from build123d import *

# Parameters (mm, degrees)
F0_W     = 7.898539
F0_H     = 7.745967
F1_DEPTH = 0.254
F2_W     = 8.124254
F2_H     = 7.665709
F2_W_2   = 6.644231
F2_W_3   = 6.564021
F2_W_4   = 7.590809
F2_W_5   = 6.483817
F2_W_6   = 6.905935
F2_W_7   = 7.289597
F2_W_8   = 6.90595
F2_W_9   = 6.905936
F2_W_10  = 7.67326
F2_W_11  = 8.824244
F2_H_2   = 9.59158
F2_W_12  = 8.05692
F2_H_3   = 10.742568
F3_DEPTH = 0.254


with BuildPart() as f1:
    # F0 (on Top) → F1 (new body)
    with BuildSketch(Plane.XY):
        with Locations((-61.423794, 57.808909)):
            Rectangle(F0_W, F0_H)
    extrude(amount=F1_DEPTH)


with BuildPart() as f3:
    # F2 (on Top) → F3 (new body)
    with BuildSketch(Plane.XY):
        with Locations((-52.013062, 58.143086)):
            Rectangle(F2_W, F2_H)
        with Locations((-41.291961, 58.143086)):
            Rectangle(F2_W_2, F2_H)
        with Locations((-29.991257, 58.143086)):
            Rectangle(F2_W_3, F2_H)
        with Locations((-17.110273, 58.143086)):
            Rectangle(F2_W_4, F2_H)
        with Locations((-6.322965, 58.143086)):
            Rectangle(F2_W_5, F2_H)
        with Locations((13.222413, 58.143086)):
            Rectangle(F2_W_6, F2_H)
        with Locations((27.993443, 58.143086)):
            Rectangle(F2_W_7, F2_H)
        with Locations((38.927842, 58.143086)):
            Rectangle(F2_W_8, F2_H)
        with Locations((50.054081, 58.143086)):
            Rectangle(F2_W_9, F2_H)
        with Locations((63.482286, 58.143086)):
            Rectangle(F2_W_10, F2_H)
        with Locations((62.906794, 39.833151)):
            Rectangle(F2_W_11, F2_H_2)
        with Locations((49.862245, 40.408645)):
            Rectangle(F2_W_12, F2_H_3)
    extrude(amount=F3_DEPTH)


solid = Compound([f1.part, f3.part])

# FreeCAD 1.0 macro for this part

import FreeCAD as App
import Part
import Sketcher
from FreeCAD import Vector
Q = App.Units.Quantity

doc = App.newDocument("Part")
body = doc.addObject("PartDesign::Body", "Body")

sketch1 = body.newObject("Sketcher::SketchObject", "Sketch")
sketch1.AttachmentSupport = (doc.getObject("XY_Plane"), [""])
sketch1.MapMode = "FlatFace"
sketch1.addGeometry([
    Part.LineSegment(Vector(-65, 62, 0), Vector(-65, 54, 0)),
    Part.LineSegment(Vector(-65, 54, 0), Vector(-57, 54, 0)),
    Part.LineSegment(Vector(-57, 54, 0), Vector(-57, 62, 0)),
    Part.LineSegment(Vector(-57, 62, 0), Vector(-65, 62, 0)),
], False)
sketch1.addConstraint([
    Sketcher.Constraint("Coincident", 0, 2, 1, 1),
    Sketcher.Constraint("Coincident", 1, 2, 2, 1),
    Sketcher.Constraint("Coincident", 2, 2, 3, 1),
    Sketcher.Constraint("Coincident", 3, 2, 0, 1),
    Sketcher.Constraint("Vertical", 0),
    Sketcher.Constraint("Horizontal", 1),
    Sketcher.Constraint("Vertical", 2),
    Sketcher.Constraint("Horizontal", 3),
    Sketcher.Constraint("DistanceX", 1, 1, 1, 2, 7.898539),
    Sketcher.Constraint("DistanceY", 0, 2, 0, 1, 7.745967),
    Sketcher.Constraint("DistanceX", 0, 2, -1, 1, 65.373064),
    Sketcher.Constraint("DistanceY", -1, 1, 0, 2, 53.935926),
])
pad1 = body.newObject("PartDesign::Pad", "Pad")
pad1.Profile = sketch1
pad1.Length = Q("0.01 in")
body2 = doc.addObject("PartDesign::Body", "Body001")
body2.AllowCompound = True

sketch2 = body2.newObject("Sketcher::SketchObject", "Sketch001")
sketch2.AttachmentSupport = (doc.getObject("XY_Plane001"), [""])
sketch2.MapMode = "FlatFace"
sketch2.addGeometry([
    Part.LineSegment(Vector(-56, 62, 0), Vector(-56, 54, 0)),
    Part.LineSegment(Vector(-56, 54, 0), Vector(-48, 54, 0)),
    Part.LineSegment(Vector(-48, 54, 0), Vector(-48, 62, 0)),
    Part.LineSegment(Vector(-48, 62, 0), Vector(-56, 62, 0)),
    Part.LineSegment(Vector(-45, 62, 0), Vector(-45, 54, 0)),
    Part.LineSegment(Vector(-45, 54, 0), Vector(-38, 54, 0)),
    Part.LineSegment(Vector(-38, 54, 0), Vector(-38, 62, 0)),
    Part.LineSegment(Vector(-38, 62, 0), Vector(-45, 62, 0)),
    Part.LineSegment(Vector(-33, 62, 0), Vector(-33, 54, 0)),
    Part.LineSegment(Vector(-33, 54, 0), Vector(-27, 54, 0)),
    Part.LineSegment(Vector(-27, 54, 0), Vector(-27, 62, 0)),
    Part.LineSegment(Vector(-27, 62, 0), Vector(-33, 62, 0)),
    Part.LineSegment(Vector(-21, 62, 0), Vector(-21, 54, 0)),
    Part.LineSegment(Vector(-21, 54, 0), Vector(-13, 54, 0)),
    Part.LineSegment(Vector(-13, 54, 0), Vector(-13, 62, 0)),
    Part.LineSegment(Vector(-13, 62, 0), Vector(-21, 62, 0)),
    Part.LineSegment(Vector(-10, 62, 0), Vector(-10, 54, 0)),
    Part.LineSegment(Vector(-10, 54, 0), Vector(-3, 54, 0)),
    Part.LineSegment(Vector(-3, 54, 0), Vector(-3, 62, 0)),
    Part.LineSegment(Vector(-3, 62, 0), Vector(-10, 62, 0)),
    Part.LineSegment(Vector(10, 62, 0), Vector(10, 54, 0)),
    Part.LineSegment(Vector(10, 54, 0), Vector(17, 54, 0)),
    Part.LineSegment(Vector(17, 54, 0), Vector(17, 62, 0)),
    Part.LineSegment(Vector(17, 62, 0), Vector(10, 62, 0)),
    Part.LineSegment(Vector(24, 62, 0), Vector(24, 54, 0)),
    Part.LineSegment(Vector(24, 54, 0), Vector(32, 54, 0)),
    Part.LineSegment(Vector(32, 54, 0), Vector(32, 62, 0)),
    Part.LineSegment(Vector(32, 62, 0), Vector(24, 62, 0)),
    Part.LineSegment(Vector(35, 62, 0), Vector(35, 54, 0)),
    Part.LineSegment(Vector(35, 54, 0), Vector(42, 54, 0)),
    Part.LineSegment(Vector(42, 54, 0), Vector(42, 62, 0)),
    Part.LineSegment(Vector(42, 62, 0), Vector(35, 62, 0)),
    Part.LineSegment(Vector(47, 62, 0), Vector(47, 54, 0)),
    Part.LineSegment(Vector(47, 54, 0), Vector(54, 54, 0)),
    Part.LineSegment(Vector(54, 54, 0), Vector(54, 62, 0)),
    Part.LineSegment(Vector(54, 62, 0), Vector(47, 62, 0)),
    Part.LineSegment(Vector(60, 62, 0), Vector(60, 54, 0)),
    Part.LineSegment(Vector(60, 54, 0), Vector(67, 54, 0)),
    Part.LineSegment(Vector(67, 54, 0), Vector(67, 62, 0)),
    Part.LineSegment(Vector(67, 62, 0), Vector(60, 62, 0)),
    Part.LineSegment(Vector(58, 45, 0), Vector(58, 35, 0)),
    Part.LineSegment(Vector(58, 35, 0), Vector(67, 35, 0)),
    Part.LineSegment(Vector(67, 35, 0), Vector(67, 45, 0)),
    Part.LineSegment(Vector(67, 45, 0), Vector(58, 45, 0)),
    Part.LineSegment(Vector(46, 46, 0), Vector(46, 35, 0)),
    Part.LineSegment(Vector(46, 35, 0), Vector(54, 35, 0)),
    Part.LineSegment(Vector(54, 35, 0), Vector(54, 46, 0)),
    Part.LineSegment(Vector(54, 46, 0), Vector(46, 46, 0)),
], False)
sketch2.addConstraint([
    Sketcher.Constraint("Coincident", 0, 2, 1, 1),
    Sketcher.Constraint("Coincident", 1, 2, 2, 1),
    Sketcher.Constraint("Coincident", 2, 2, 3, 1),
    Sketcher.Constraint("Coincident", 3, 2, 0, 1),
    Sketcher.Constraint("Coincident", 4, 2, 5, 1),
    Sketcher.Constraint("Coincident", 5, 2, 6, 1),
    Sketcher.Constraint("Coincident", 6, 2, 7, 1),
    Sketcher.Constraint("Coincident", 7, 2, 4, 1),
    Sketcher.Constraint("Coincident", 8, 2, 9, 1),
    Sketcher.Constraint("Coincident", 9, 2, 10, 1),
    Sketcher.Constraint("Coincident", 10, 2, 11, 1),
    Sketcher.Constraint("Coincident", 11, 2, 8, 1),
    Sketcher.Constraint("Coincident", 12, 2, 13, 1),
    Sketcher.Constraint("Coincident", 13, 2, 14, 1),
    Sketcher.Constraint("Coincident", 14, 2, 15, 1),
    Sketcher.Constraint("Coincident", 15, 2, 12, 1),
    Sketcher.Constraint("Coincident", 16, 2, 17, 1),
    Sketcher.Constraint("Coincident", 17, 2, 18, 1),
    Sketcher.Constraint("Coincident", 18, 2, 19, 1),
    Sketcher.Constraint("Coincident", 19, 2, 16, 1),
    Sketcher.Constraint("Coincident", 20, 2, 21, 1),
    Sketcher.Constraint("Coincident", 21, 2, 22, 1),
    Sketcher.Constraint("Coincident", 22, 2, 23, 1),
    Sketcher.Constraint("Coincident", 23, 2, 20, 1),
    Sketcher.Constraint("Coincident", 24, 2, 25, 1),
    Sketcher.Constraint("Coincident", 25, 2, 26, 1),
    Sketcher.Constraint("Coincident", 26, 2, 27, 1),
    Sketcher.Constraint("Coincident", 27, 2, 24, 1),
    Sketcher.Constraint("Coincident", 28, 2, 29, 1),
    Sketcher.Constraint("Coincident", 29, 2, 30, 1),
    Sketcher.Constraint("Coincident", 30, 2, 31, 1),
    Sketcher.Constraint("Coincident", 31, 2, 28, 1),
    Sketcher.Constraint("Coincident", 32, 2, 33, 1),
    Sketcher.Constraint("Coincident", 33, 2, 34, 1),
    Sketcher.Constraint("Coincident", 34, 2, 35, 1),
    Sketcher.Constraint("Coincident", 35, 2, 32, 1),
    Sketcher.Constraint("Coincident", 36, 2, 37, 1),
    Sketcher.Constraint("Coincident", 37, 2, 38, 1),
    Sketcher.Constraint("Coincident", 38, 2, 39, 1),
    Sketcher.Constraint("Coincident", 39, 2, 36, 1),
    Sketcher.Constraint("Coincident", 40, 2, 41, 1),
    Sketcher.Constraint("Coincident", 41, 2, 42, 1),
    Sketcher.Constraint("Coincident", 42, 2, 43, 1),
    Sketcher.Constraint("Coincident", 43, 2, 40, 1),
    Sketcher.Constraint("Coincident", 44, 2, 45, 1),
    Sketcher.Constraint("Coincident", 45, 2, 46, 1),
    Sketcher.Constraint("Coincident", 46, 2, 47, 1),
    Sketcher.Constraint("Coincident", 47, 2, 44, 1),
    Sketcher.Constraint("Vertical", 0),
    Sketcher.Constraint("Horizontal", 1),
    Sketcher.Constraint("Vertical", 2),
    Sketcher.Constraint("Horizontal", 3),
    Sketcher.Constraint("Vertical", 4),
    Sketcher.Constraint("Horizontal", 5),
    Sketcher.Constraint("Vertical", 6),
    Sketcher.Constraint("Horizontal", 7),
    Sketcher.Constraint("Vertical", 8),
    Sketcher.Constraint("Horizontal", 9),
    Sketcher.Constraint("Vertical", 10),
    Sketcher.Constraint("Horizontal", 11),
    Sketcher.Constraint("Vertical", 12),
    Sketcher.Constraint("Horizontal", 13),
    Sketcher.Constraint("Vertical", 14),
    Sketcher.Constraint("Horizontal", 15),
    Sketcher.Constraint("Vertical", 16),
    Sketcher.Constraint("Horizontal", 17),
    Sketcher.Constraint("Vertical", 18),
    Sketcher.Constraint("Horizontal", 19),
    Sketcher.Constraint("Vertical", 20),
    Sketcher.Constraint("Horizontal", 21),
    Sketcher.Constraint("Vertical", 22),
    Sketcher.Constraint("Horizontal", 23),
    Sketcher.Constraint("Vertical", 24),
    Sketcher.Constraint("Horizontal", 25),
    Sketcher.Constraint("Vertical", 26),
    Sketcher.Constraint("Horizontal", 27),
    Sketcher.Constraint("Vertical", 28),
    Sketcher.Constraint("Horizontal", 29),
    Sketcher.Constraint("Vertical", 30),
    Sketcher.Constraint("Horizontal", 31),
    Sketcher.Constraint("Vertical", 32),
    Sketcher.Constraint("Horizontal", 33),
    Sketcher.Constraint("Vertical", 34),
    Sketcher.Constraint("Horizontal", 35),
    Sketcher.Constraint("Vertical", 36),
    Sketcher.Constraint("Horizontal", 37),
    Sketcher.Constraint("Vertical", 38),
    Sketcher.Constraint("Horizontal", 39),
    Sketcher.Constraint("Vertical", 40),
    Sketcher.Constraint("Horizontal", 41),
    Sketcher.Constraint("Vertical", 42),
    Sketcher.Constraint("Horizontal", 43),
    Sketcher.Constraint("Vertical", 44),
    Sketcher.Constraint("Horizontal", 45),
    Sketcher.Constraint("Vertical", 46),
    Sketcher.Constraint("Horizontal", 47),
    Sketcher.Constraint("Horizontal", 1, 2, 4, 2),
    Sketcher.Constraint("Horizontal", 3, 2, 6, 2),
    Sketcher.Constraint("Horizontal", 5, 2, 8, 2),
    Sketcher.Constraint("Horizontal", 7, 2, 10, 2),
    Sketcher.Constraint("Horizontal", 9, 2, 12, 2),
    Sketcher.Constraint("Horizontal", 11, 2, 14, 2),
    Sketcher.Constraint("Horizontal", 13, 2, 16, 2),
    Sketcher.Constraint("Horizontal", 15, 2, 18, 2),
    Sketcher.Constraint("Horizontal", 17, 2, 20, 2),
    Sketcher.Constraint("Horizontal", 19, 2, 22, 2),
    Sketcher.Constraint("Horizontal", 21, 2, 24, 2),
    Sketcher.Constraint("Horizontal", 23, 2, 26, 2),
    Sketcher.Constraint("Horizontal", 25, 2, 28, 2),
    Sketcher.Constraint("Horizontal", 27, 2, 30, 2),
    Sketcher.Constraint("Horizontal", 29, 2, 32, 2),
    Sketcher.Constraint("Horizontal", 31, 2, 34, 2),
    Sketcher.Constraint("Horizontal", 33, 2, 36, 2),
    Sketcher.Constraint("Horizontal", 35, 2, 38, 2),
    Sketcher.Constraint("Horizontal", 41, 2, 44, 2),
    Sketcher.Constraint("Vertical", 38, 2, 41, 2),
    Sketcher.Constraint("Equal", 23, 33),
    Sketcher.Constraint("DistanceX", -1, 1, 25, 2, Q("1.2456001 in")),
    Sketcher.Constraint("DistanceX", 5, 1, 5, 2, 6.644231),
    Sketcher.Constraint("DistanceX", 9, 1, 9, 2, 6.564021),
    Sketcher.Constraint("DistanceX", 13, 1, 13, 2, 7.590809),
    Sketcher.Constraint("DistanceX", 29, 1, 29, 2, 6.90595),
    Sketcher.Constraint("DistanceX", 37, 1, 37, 2, 7.67326),
    Sketcher.Constraint("DistanceX", 45, 1, 45, 2, 8.05692),
    Sketcher.Constraint("DistanceY", 0, 2, 0, 1, 7.665709),
    Sketcher.Constraint("DistanceY", 40, 2, 40, 1, 9.59158),
    Sketcher.Constraint("DistanceY", 44, 2, 44, 1, 10.742568),
    Sketcher.Constraint("DistanceX", 5, 2, 9, 2, 11.260599),
    Sketcher.Constraint("DistanceX", 8, 2, 13, 2, 19.958399),
    Sketcher.Constraint("DistanceX", 17, 2, 20, 2, 12.850502),
    Sketcher.Constraint("DistanceX", 20, 2, 24, 2, 14.579199),
    Sketcher.Constraint("DistanceX", 1, 1, 1, 2, 8.124254),
    Sketcher.Constraint("DistanceX", 17, 1, 17, 2, 6.483817),
    Sketcher.Constraint("DistanceX", 21, 1, 21, 2, 6.905935),
    Sketcher.Constraint("DistanceX", 25, 1, 25, 2, 7.289597),
    Sketcher.Constraint("DistanceX", 41, 1, 41, 2, 8.824244),
    Sketcher.Constraint("DistanceX", 0, 2, -1, 1, 56.075189),
    Sketcher.Constraint("DistanceY", -1, 1, 0, 2, 54.310232),
    Sketcher.Constraint("DistanceX", 13, 2, -1, 1, 13.314868),
    Sketcher.Constraint("DistanceX", -1, 1, 33, 2, 53.507049),
    Sketcher.Constraint("DistanceY", -1, 1, 40, 2, 35.037361),
    Sketcher.Constraint("DistanceX", 28, 2, 33, 2, 18.032182),
    Sketcher.Constraint("DistanceX", 29, 2, 36, 2, 17.264839),
    Sketcher.Constraint("DistanceX", 45, 2, 41, 2, 13.428211),
])
pad2 = body2.newObject("PartDesign::Pad", "Pad001")
pad2.Profile = sketch2
pad2.Length = Q("0.01 in")

doc.recompute()
